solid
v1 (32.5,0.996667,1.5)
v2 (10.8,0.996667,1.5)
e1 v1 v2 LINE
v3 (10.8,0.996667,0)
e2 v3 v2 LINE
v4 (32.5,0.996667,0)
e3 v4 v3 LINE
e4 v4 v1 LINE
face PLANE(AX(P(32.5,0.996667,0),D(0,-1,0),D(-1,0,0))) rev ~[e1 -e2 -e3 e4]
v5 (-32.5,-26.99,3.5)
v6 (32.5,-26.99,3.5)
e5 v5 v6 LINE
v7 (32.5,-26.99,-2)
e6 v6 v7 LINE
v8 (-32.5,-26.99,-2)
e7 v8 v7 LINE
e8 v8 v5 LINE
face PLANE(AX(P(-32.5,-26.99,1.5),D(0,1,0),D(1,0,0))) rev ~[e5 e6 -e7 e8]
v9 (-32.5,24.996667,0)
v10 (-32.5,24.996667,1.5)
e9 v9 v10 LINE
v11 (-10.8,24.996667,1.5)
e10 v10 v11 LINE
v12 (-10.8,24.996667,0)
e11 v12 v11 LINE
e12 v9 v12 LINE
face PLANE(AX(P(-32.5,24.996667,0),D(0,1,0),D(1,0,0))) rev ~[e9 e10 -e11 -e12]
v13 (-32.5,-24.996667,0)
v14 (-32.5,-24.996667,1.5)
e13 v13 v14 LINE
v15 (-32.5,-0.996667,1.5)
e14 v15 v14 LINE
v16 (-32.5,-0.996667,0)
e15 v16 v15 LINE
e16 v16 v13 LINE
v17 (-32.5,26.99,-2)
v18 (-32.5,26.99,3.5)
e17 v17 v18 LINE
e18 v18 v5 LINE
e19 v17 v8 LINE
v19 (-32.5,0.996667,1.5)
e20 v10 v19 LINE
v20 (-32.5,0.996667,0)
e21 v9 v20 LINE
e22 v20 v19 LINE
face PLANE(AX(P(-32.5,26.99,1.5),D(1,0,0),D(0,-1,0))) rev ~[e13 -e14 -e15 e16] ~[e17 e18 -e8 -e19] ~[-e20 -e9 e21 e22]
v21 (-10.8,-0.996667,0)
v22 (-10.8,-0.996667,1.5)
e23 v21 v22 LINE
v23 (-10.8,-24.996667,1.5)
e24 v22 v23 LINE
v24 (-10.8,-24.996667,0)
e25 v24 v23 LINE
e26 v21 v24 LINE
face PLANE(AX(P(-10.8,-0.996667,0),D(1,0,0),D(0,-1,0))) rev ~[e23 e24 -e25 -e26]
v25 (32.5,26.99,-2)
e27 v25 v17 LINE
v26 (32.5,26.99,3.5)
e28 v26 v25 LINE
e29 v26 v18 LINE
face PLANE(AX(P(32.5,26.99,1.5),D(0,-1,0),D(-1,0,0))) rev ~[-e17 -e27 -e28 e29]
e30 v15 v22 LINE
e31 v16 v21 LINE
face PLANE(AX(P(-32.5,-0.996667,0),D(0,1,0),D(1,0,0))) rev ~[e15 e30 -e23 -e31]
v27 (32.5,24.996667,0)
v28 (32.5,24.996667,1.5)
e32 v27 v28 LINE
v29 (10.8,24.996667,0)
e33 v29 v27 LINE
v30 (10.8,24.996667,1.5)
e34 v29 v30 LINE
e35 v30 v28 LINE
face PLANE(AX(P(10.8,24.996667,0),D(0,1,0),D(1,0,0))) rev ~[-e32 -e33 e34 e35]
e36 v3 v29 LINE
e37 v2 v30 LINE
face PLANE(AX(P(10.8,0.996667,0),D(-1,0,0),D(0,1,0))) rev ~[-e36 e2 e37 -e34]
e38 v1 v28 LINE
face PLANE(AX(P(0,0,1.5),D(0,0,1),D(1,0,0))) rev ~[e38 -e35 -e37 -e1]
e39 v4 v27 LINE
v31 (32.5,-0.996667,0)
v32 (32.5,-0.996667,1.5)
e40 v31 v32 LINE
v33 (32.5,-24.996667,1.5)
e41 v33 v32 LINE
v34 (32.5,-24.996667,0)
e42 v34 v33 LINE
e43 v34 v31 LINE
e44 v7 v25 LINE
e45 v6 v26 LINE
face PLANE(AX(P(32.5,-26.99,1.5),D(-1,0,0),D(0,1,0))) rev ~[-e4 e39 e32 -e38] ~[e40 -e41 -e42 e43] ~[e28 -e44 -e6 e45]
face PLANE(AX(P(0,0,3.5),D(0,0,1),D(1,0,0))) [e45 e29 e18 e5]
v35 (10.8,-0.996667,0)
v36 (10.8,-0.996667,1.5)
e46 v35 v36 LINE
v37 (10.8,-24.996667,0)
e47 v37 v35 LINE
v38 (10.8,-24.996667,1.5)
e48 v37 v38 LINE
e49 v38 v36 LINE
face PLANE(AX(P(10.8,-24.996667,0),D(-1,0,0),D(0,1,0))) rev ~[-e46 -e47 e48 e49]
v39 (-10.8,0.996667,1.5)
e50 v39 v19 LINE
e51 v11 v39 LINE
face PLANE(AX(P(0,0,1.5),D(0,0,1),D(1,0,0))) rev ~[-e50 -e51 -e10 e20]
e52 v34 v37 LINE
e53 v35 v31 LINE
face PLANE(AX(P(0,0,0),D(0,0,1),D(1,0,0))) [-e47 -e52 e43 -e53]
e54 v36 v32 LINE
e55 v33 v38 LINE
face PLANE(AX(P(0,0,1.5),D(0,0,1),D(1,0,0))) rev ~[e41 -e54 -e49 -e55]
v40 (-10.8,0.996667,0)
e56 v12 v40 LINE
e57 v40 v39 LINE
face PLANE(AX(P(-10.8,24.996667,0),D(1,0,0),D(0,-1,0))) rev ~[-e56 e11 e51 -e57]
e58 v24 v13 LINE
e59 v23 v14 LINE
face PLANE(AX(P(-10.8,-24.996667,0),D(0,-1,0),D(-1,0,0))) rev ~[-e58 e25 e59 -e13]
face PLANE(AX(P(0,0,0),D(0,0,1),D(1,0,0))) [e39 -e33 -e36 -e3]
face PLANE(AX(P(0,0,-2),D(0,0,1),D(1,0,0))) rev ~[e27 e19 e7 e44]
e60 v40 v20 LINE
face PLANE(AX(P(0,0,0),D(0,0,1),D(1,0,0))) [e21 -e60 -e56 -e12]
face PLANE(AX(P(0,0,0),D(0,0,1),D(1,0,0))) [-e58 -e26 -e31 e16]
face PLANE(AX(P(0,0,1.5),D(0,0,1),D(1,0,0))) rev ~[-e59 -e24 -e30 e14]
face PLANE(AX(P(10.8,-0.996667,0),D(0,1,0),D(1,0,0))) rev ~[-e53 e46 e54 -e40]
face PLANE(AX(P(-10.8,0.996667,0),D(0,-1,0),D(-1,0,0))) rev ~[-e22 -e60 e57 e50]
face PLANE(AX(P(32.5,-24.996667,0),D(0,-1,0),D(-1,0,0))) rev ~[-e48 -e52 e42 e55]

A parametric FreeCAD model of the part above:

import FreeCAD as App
import Part
import Sketcher

V = App.Vector
Q = App.Units.Quantity

doc = App.newDocument("Part")
body = doc.addObject("PartDesign::Body", "Body")

sketch1 = doc.addObject("Sketcher::SketchObject", "Sketch")
body.addObject(sketch1)
sketch1.AttachmentSupport = (doc.XY_Plane, [""])
sketch1.MapMode = "FlatFace"
sketch1.addGeometry([
    Part.LineSegment(V(32, 27, 0), V(-32, 27, 0)),
    Part.LineSegment(V(-32, 27, 0), V(-32, -27, 0)),
    Part.LineSegment(V(-32, -27, 0), V(32, -27, 0)),
    Part.LineSegment(V(32, -27, 0), V(32, 27, 0)),
], False)
sketch1.addConstraint([
    Sketcher.Constraint("Coincident", 0, 2, 1, 1),
    Sketcher.Constraint("Coincident", 1, 2, 2, 1),
    Sketcher.Constraint("Coincident", 2, 2, 3, 1),
    Sketcher.Constraint("Coincident", 3, 2, 0, 1),
    Sketcher.Constraint("Horizontal", 0),
    Sketcher.Constraint("Vertical", 1),
    Sketcher.Constraint("Horizontal", 2),
    Sketcher.Constraint("Vertical", 3),
    Sketcher.Constraint("Symmetric", 0, 2, 2, 2, -1, 1),
    Sketcher.Constraint("DistanceX", 0, 2, 0, 1, Q("65 mm")),
    Sketcher.Constraint("DistanceY", 1, 2, 1, 1, Q("53.98 mm")),
])
pad1 = doc.addObject("PartDesign::Pad", "Pad")
body.addObject(pad1)
pad1.Profile = sketch1
pad1.Length = 2
pad1.Reversed = True

sketch2 = doc.addObject("Sketcher::SketchObject", "Sketch001")
body.addObject(sketch2)
sketch2.AttachmentSupport = (doc.XY_Plane, [""])
sketch2.MapMode = "FlatFace"
sketch2.addGeometry([
    Part.LineSegment(V(32.5, 27, 0), V(-32.5, 27, 0)),
    Part.LineSegment(V(-32.5, 27, 0), V(-32.5, 25, 0)),
    Part.LineSegment(V(-32.5, 25, 0), V(-10.8, 25, 0)),
    Part.LineSegment(V(-10.8, 25, 0), V(-10.8, 1, 0)),
    Part.LineSegment(V(-10.8, 1, 0), V(-32.5, 1, 0)),
    Part.LineSegment(V(-32.5, 1, 0), V(-32.5, -1, 0)),
    Part.LineSegment(V(-32.5, -1, 0), V(-10.8, -1, 0)),
    Part.LineSegment(V(-10.8, -1, 0), V(-10.8, -25, 0)),
    Part.LineSegment(V(-10.8, -25, 0), V(-32.5, -25, 0)),
    Part.LineSegment(V(-32.5, -25, 0), V(-32.5, -27, 0)),
    Part.LineSegment(V(-32.5, -27, 0), V(32.5, -27, 0)),
    Part.LineSegment(V(32.5, -27, 0), V(32.5, -25, 0)),
    Part.LineSegment(V(32.5, -25, 0), V(10.8, -25, 0)),
    Part.LineSegment(V(10.8, -25, 0), V(10.8, -1, 0)),
    Part.LineSegment(V(10.8, -1, 0), V(32.5, -1, 0)),
    Part.LineSegment(V(32.5, -1, 0), V(32.5, 1, 0)),
    Part.LineSegment(V(32.5, 1, 0), V(10.8, 1, 0)),
    Part.LineSegment(V(10.8, 1, 0), V(10.8, 25, 0)),
    Part.LineSegment(V(10.8, 25, 0), V(32.5, 25, 0)),
    Part.LineSegment(V(32.5, 25, 0), V(32.5, 27, 0)),
], False)
sketch2.addConstraint([
    Sketcher.Constraint("Coincident", 0, 2, 1, 1),
    Sketcher.Constraint("Coincident", 1, 2, 2, 1),
    Sketcher.Constraint("Coincident", 2, 2, 3, 1),
    Sketcher.Constraint("Coincident", 3, 2, 4, 1),
    Sketcher.Constraint("Coincident", 4, 2, 5, 1),
    Sketcher.Constraint("Coincident", 5, 2, 6, 1),
    Sketcher.Constraint("Coincident", 6, 2, 7, 1),
    Sketcher.Constraint("Coincident", 7, 2, 8, 1),
    Sketcher.Constraint("Coincident", 8, 2, 9, 1),
    Sketcher.Constraint("Coincident", 9, 2, 10, 1),
    Sketcher.Constraint("Coincident", 10, 2, 11, 1),
    Sketcher.Constraint("Coincident", 11, 2, 12, 1),
    Sketcher.Constraint("Coincident", 12, 2, 13, 1),
    Sketcher.Constraint("Coincident", 13, 2, 14, 1),
    Sketcher.Constraint("Coincident", 14, 2, 15, 1),
    Sketcher.Constraint("Coincident", 15, 2, 16, 1),
    Sketcher.Constraint("Coincident", 16, 2, 17, 1),
    Sketcher.Constraint("Coincident", 17, 2, 18, 1),
    Sketcher.Constraint("Coincident", 18, 2, 19, 1),
    Sketcher.Constraint("Coincident", 19, 2, 0, 1),
    Sketcher.Constraint("Horizontal", 0),
    Sketcher.Constraint("Vertical", 1),
    Sketcher.Constraint("Horizontal", 2),
    Sketcher.Constraint("Vertical", 3),
    Sketcher.Constraint("Horizontal", 4),
    Sketcher.Constraint("Vertical", 5),
    Sketcher.Constraint("Horizontal", 6),
    Sketcher.Constraint("Vertical", 7),
    Sketcher.Constraint("Horizontal", 8),
    Sketcher.Constraint("Vertical", 9),
    Sketcher.Constraint("Horizontal", 10),
    Sketcher.Constraint("Vertical", 11),
    Sketcher.Constraint("Horizontal", 12),
    Sketcher.Constraint("Vertical", 13),
    Sketcher.Constraint("Horizontal", 14),
    Sketcher.Constraint("Vertical", 15),
    Sketcher.Constraint("Horizontal", 16),
    Sketcher.Constraint("Vertical", 17),
    Sketcher.Constraint("Horizontal", 18),
    Sketcher.Constraint("Vertical", 19),
    Sketcher.Constraint("Symmetric", 0, 2, 10, 2, -1, 1),
    Sketcher.Constraint("Symmetric", 2, 2, 12, 2, -1, 1),
    Sketcher.Constraint("Symmetric", 4, 2, 14, 2, -1, 1),
    Sketcher.Constraint("Symmetric", 6, 2, 16, 2, -1, 1),
    Sketcher.Constraint("Symmetric", 8, 2, 18, 2, -1, 1),
    Sketcher.Constraint("Symmetric", 8, 2, 11, 2, -2),
    Sketcher.Constraint("Symmetric", 6, 2, 13, 2, -2),
    Sketcher.Constraint("Vertical", 1, 2, 4, 2),
    Sketcher.Constraint("Equal", 1, 5),
    Sketcher.Constraint("DistanceX", 0, 2, 0, 1, Q("65 mm")),
    Sketcher.Constraint("DistanceY", 3, 2, 3, 1, Q("24 mm")),
    Sketcher.Constraint("DistanceX", 2, 1, 2, 2, Q("21.7 mm")),
    Sketcher.Constraint("DistanceY", -1, 1, 0, 2, Q("26.99 mm")),
])
pad2 = doc.addObject("PartDesign::Pad", "Pad001")
body.addObject(pad2)
pad2.Profile = sketch2
pad2.Length = 1.5

sketch3 = doc.addObject("Sketcher::SketchObject", "Sketch002")
body.addObject(sketch3)
sketch3.AttachmentSupport = (doc.XY_Plane, [""])
sketch3.MapMode = "FlatFace"
sketch3.AttachmentOffset = App.Placement(V(0, 0, 1.5), App.Rotation())
sketch3.addGeometry([
    Part.LineSegment(V(32, 27, 0), V(-32, 27, 0)),
    Part.LineSegment(V(-32, 27, 0), V(-32, -27, 0)),
    Part.LineSegment(V(-32, -27, 0), V(32, -27, 0)),
    Part.LineSegment(V(32, -27, 0), V(32, 27, 0)),
], False)
sketch3.addConstraint([
    Sketcher.Constraint("Coincident", 0, 2, 1, 1),
    Sketcher.Constraint("Coincident", 1, 2, 2, 1),
    Sketcher.Constraint("Coincident", 2, 2, 3, 1),
    Sketcher.Constraint("Coincident", 3, 2, 0, 1),
    Sketcher.Constraint("Horizontal", 0),
    Sketcher.Constraint("Vertical", 1),
    Sketcher.Constraint("Horizontal", 2),
    Sketcher.Constraint("Vertical", 3),
    Sketcher.Constraint("Symmetric", 0, 2, 2, 2, -1, 1),
    Sketcher.Constraint("DistanceX", 0, 2, 0, 1, Q("65 mm")),
    Sketcher.Constraint("DistanceY", 1, 2, 1, 1, Q("53.98 mm")),
])
pad3 = doc.addObject("PartDesign::Pad", "Pad002")
body.addObject(pad3)
pad3.Profile = sketch3
pad3.Length = 2

doc.recompute()
